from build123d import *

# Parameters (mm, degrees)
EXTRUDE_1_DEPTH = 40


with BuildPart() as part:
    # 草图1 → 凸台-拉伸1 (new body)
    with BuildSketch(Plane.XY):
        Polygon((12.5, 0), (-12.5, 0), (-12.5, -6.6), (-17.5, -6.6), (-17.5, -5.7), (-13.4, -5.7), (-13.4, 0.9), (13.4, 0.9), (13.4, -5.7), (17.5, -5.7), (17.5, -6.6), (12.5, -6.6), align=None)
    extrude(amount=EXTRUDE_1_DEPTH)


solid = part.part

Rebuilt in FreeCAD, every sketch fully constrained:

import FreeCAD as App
import Part
import Sketcher

V = App.Vector
Q = App.Units.Quantity


def add_polygon(sketch, points):
    """Adds a closed chain of lines whose ends are joined by coincident constraints."""
    first, n = sketch.GeometryCount, len(points)
    for a, b in zip(points, points[1:] + points[:1]):
        sketch.addGeometry(Part.LineSegment(App.Vector(*a, 0), App.Vector(*b, 0)), False)
    for i in range(n):
        sketch.addConstraint(Sketcher.Constraint("Coincident", first + i, 2, first + (i + 1) % n, 1))

doc = App.newDocument("Part")
body = doc.addObject("PartDesign::Body", "Body")

sketch1 = body.newObject("Sketcher::SketchObject", "Sketch")
sketch1.AttachmentSupport = (doc.getObject("XY_Plane"), [""])
sketch1.MapMode = "FlatFace"
add_polygon(sketch1, [(-12.5, 0), (12.5, 0), (12.5, -6.6), (17.5, -6.6), (17.5, -5.7), (13.4, -5.7), (13.4, 0.9), (-13.4, 0.9), (-13.4, -5.7), (-17.5, -5.7), (-17.5, -6.6), (-12.5, -6.6)])
sketch1.addConstraint([
    Sketcher.Constraint("Horizontal", 0),
    Sketcher.Constraint("Vertical", 1),
    Sketcher.Constraint("Horizontal", 2),
    Sketcher.Constraint("Vertical", 3),
    Sketcher.Constraint("Horizontal", 4),
    Sketcher.Constraint("Vertical", 5),
    Sketcher.Constraint("Horizontal", 6),
    Sketcher.Constraint("Vertical", 7),
    Sketcher.Constraint("Horizontal", 8),
    Sketcher.Constraint("Vertical", 9),
    Sketcher.Constraint("Horizontal", 10),
    Sketcher.Constraint("Vertical", 11),
    Sketcher.Constraint("Symmetric", 0, 2, 11, 2, -1, 1),
    Sketcher.Constraint("Symmetric", 4, 2, 7, 2, -2),
    Sketcher.Constraint("Symmetric", 2, 2, 9, 2, -2),
    Sketcher.Constraint("Equal", 1, 5),
    Sketcher.Constraint("DistanceX", 0, 1, 0, 2, Q("25 mm")),
    Sketcher.Constraint("DistanceX", 2, 1, 2, 2, Q("5 mm")),
    Sketcher.Constraint("DistanceX", 4, 2, 4, 1, Q("4.1 mm")),
    Sketcher.Constraint("DistanceY", 1, 2, 1, 1, Q("6.6 mm")),
    Sketcher.Constraint("DistanceY", 3, 1, 3, 2, Q("0.9 mm")),
])
pad1 = body.newObject("PartDesign::Pad", "Pad")
pad1.Profile = sketch1
pad1.Length = 40

doc.recompute()
